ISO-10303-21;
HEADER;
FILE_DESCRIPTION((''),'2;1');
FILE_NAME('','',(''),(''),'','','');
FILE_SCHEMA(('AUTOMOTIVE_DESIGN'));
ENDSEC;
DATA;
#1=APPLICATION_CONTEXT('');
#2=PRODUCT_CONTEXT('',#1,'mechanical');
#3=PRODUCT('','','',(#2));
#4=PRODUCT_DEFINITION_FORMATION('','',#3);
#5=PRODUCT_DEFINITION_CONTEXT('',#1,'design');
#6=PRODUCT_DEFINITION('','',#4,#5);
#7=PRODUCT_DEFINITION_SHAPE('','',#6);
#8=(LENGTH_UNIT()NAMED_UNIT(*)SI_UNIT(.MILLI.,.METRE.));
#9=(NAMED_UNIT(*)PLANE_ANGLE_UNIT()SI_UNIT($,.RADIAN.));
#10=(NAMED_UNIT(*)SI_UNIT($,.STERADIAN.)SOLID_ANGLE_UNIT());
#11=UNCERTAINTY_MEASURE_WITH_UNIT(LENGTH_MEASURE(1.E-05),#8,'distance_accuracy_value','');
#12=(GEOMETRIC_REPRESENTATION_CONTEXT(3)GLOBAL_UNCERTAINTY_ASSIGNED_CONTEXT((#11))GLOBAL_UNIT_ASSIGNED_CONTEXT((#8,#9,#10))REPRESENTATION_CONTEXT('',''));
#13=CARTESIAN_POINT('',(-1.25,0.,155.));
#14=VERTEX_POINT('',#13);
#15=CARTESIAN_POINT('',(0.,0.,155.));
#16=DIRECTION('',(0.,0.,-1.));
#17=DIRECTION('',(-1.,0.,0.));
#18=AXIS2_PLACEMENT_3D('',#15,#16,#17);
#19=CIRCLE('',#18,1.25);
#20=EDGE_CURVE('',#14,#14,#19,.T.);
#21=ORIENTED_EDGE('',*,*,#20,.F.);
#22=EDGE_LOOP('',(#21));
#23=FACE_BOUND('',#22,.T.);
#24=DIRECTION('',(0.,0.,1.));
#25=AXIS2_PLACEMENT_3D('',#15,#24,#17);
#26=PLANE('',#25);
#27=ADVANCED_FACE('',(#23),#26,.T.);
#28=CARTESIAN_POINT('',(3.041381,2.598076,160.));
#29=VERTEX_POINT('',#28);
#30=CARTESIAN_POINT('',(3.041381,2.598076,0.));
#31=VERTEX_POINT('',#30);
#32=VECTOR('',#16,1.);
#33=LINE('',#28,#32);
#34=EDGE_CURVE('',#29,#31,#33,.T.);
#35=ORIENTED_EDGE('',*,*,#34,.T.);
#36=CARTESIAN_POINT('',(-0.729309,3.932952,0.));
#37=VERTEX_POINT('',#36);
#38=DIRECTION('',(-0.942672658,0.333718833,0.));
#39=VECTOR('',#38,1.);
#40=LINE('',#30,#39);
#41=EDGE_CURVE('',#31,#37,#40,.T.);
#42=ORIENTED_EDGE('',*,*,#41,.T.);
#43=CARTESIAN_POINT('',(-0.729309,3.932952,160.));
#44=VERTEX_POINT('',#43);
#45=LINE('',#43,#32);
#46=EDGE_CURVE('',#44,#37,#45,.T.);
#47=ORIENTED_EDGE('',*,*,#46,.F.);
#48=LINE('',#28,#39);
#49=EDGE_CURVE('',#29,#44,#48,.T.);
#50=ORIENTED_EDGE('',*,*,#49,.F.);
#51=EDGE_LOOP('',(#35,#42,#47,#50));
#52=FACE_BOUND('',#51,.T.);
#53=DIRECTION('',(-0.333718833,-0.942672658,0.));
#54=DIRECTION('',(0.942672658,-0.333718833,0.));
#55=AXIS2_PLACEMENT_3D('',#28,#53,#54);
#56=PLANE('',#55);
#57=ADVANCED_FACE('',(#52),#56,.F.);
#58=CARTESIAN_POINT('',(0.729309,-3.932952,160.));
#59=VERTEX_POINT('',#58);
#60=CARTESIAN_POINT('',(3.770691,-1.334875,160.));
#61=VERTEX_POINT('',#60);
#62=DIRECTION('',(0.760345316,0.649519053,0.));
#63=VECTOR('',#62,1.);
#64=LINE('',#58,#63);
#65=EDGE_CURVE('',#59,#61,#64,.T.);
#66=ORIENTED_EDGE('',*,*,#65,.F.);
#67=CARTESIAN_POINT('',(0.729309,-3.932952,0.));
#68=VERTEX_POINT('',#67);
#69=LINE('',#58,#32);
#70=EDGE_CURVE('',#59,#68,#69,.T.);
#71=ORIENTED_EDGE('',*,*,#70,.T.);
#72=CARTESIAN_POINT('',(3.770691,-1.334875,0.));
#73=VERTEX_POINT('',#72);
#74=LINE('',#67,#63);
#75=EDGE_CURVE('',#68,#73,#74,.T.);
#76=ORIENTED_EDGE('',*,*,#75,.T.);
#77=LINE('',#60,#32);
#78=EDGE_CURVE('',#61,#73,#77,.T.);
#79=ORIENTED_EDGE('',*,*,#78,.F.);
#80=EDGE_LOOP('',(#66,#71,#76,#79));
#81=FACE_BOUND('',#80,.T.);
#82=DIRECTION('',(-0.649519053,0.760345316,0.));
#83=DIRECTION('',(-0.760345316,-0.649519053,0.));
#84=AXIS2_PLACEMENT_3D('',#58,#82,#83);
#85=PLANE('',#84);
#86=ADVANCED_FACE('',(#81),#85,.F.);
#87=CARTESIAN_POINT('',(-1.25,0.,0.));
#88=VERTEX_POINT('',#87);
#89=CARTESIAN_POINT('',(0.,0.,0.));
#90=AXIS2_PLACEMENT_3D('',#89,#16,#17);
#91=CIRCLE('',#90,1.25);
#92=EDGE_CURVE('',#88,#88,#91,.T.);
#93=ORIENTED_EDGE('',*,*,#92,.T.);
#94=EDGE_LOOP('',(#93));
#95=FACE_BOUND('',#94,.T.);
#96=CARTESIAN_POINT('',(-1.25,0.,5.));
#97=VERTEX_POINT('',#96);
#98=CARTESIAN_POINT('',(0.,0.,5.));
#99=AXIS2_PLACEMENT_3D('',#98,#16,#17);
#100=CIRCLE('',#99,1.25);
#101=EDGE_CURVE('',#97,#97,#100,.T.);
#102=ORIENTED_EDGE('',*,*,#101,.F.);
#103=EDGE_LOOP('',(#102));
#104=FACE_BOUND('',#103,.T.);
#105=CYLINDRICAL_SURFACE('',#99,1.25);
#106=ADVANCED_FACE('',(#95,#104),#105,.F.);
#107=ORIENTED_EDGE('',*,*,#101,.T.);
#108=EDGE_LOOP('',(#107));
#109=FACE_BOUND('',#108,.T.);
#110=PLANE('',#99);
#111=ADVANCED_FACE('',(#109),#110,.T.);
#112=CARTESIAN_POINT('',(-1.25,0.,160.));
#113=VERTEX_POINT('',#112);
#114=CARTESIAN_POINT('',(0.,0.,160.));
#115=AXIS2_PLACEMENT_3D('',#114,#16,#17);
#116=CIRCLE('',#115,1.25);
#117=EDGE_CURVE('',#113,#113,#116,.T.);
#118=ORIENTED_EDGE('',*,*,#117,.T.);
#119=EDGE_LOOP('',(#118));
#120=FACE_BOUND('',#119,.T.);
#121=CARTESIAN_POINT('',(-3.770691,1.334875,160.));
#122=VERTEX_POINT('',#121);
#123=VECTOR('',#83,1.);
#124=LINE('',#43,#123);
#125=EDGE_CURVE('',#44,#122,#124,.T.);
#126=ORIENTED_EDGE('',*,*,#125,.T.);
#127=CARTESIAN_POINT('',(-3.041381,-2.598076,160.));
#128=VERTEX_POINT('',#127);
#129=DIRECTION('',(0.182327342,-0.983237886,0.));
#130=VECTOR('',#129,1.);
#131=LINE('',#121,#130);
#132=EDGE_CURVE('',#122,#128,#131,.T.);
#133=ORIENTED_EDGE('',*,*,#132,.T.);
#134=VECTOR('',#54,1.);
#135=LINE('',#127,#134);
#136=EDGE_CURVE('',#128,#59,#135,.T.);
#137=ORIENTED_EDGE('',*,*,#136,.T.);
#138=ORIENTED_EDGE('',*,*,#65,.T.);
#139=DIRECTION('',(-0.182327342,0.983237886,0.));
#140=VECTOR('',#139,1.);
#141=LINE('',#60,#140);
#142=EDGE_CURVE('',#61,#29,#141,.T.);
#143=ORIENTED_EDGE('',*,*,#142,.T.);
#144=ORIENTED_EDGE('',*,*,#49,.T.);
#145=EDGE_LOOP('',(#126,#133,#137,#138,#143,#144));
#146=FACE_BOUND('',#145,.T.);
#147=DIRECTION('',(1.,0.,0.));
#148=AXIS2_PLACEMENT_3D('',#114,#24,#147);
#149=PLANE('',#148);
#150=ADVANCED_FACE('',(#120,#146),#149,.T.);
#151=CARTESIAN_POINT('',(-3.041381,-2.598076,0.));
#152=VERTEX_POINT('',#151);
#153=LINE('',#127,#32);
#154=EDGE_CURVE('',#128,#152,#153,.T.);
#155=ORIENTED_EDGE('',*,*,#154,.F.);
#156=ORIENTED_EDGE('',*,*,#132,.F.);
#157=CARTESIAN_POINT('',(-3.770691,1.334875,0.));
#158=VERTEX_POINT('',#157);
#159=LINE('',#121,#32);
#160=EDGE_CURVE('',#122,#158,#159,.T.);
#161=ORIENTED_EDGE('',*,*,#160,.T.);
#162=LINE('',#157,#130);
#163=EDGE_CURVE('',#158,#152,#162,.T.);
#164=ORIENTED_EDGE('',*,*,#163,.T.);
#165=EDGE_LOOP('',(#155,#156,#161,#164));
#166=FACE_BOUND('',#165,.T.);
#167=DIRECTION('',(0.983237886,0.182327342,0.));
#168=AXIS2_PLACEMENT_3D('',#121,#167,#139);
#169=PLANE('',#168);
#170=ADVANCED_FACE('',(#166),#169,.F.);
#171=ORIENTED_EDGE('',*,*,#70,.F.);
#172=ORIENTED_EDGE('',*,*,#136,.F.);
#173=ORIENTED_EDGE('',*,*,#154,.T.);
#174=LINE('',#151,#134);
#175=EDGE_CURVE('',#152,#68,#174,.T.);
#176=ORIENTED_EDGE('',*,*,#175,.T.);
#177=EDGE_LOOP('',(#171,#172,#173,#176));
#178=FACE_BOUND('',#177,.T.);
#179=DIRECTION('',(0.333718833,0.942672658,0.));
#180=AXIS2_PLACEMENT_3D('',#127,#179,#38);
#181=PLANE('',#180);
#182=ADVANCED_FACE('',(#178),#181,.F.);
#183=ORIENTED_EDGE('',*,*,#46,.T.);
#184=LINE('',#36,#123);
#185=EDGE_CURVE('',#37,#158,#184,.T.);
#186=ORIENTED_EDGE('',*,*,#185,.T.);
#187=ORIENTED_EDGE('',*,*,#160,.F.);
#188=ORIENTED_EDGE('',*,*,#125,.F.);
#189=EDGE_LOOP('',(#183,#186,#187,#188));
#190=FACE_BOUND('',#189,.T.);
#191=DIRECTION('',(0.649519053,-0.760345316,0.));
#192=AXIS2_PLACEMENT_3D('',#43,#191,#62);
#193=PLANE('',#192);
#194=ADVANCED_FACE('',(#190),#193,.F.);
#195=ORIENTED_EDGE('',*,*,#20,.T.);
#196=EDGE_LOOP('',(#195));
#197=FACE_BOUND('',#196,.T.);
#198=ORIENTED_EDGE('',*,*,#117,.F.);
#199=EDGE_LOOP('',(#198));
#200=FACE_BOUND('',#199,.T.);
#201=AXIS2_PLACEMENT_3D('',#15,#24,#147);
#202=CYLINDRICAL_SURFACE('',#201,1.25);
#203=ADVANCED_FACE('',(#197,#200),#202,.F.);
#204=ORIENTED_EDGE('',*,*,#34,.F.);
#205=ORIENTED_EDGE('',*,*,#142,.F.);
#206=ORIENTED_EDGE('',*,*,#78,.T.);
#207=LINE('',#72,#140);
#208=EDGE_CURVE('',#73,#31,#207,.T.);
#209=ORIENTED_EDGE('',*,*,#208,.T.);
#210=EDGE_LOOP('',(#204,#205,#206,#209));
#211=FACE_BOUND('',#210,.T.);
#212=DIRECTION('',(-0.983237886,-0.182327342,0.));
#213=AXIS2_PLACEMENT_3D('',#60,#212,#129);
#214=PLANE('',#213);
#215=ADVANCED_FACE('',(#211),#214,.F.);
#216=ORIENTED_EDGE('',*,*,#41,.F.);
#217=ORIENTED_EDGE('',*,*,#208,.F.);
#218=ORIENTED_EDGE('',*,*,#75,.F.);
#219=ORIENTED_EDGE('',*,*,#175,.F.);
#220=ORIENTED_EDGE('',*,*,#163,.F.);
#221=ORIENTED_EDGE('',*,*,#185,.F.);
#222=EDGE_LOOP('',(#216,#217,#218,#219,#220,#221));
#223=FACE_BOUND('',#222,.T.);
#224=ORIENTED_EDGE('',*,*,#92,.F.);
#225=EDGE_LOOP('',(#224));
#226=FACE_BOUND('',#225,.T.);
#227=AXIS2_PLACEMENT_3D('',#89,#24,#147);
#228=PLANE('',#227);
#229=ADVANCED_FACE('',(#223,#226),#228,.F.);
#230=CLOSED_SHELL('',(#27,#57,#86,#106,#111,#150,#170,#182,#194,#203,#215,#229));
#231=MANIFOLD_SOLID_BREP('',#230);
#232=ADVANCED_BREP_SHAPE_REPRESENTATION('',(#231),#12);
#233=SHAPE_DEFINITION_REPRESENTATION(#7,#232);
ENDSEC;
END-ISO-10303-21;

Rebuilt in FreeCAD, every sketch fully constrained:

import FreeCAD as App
import Part
import Sketcher

doc = App.newDocument("Part")
body = doc.addObject("PartDesign::Body", "Body")

sketch1 = doc.addObject("Sketcher::SketchObject", "Sketch")
body.addObject(sketch1)
sketch1.AttachmentSupport = (doc.XY_Plane, [""])
sketch1.MapMode = "FlatFace"
sketch1.addGeometry([
    Part.LineSegment(App.Vector(3.770691, -1.334875, 0), App.Vector(3.041381, 2.598076, 0)),
    Part.LineSegment(App.Vector(3.041381, 2.598076, 0), App.Vector(-0.729309, 3.932952, 0)),
    Part.LineSegment(App.Vector(-0.729309, 3.932952, 0), App.Vector(-3.770691, 1.334875, 0)),
    Part.LineSegment(App.Vector(-3.770691, 1.334875, 0), App.Vector(-3.041381, -2.598076, 0)),
    Part.LineSegment(App.Vector(-3.041381, -2.598076, 0), App.Vector(0.729309, -3.932952, 0)),
    Part.LineSegment(App.Vector(0.729309, -3.932952, 0), App.Vector(3.770691, -1.334875, 0)),
], False)
sketch1.addConstraint([
    Sketcher.Constraint("Coincident", 0, 2, 1, 1),
    Sketcher.Constraint("Coincident", 1, 2, 2, 1),
    Sketcher.Constraint("Coincident", 2, 2, 3, 1),
    Sketcher.Constraint("Coincident", 3, 2, 4, 1),
    Sketcher.Constraint("Coincident", 4, 2, 5, 1),
    Sketcher.Constraint("Coincident", 5, 2, 0, 1),
    Sketcher.Constraint("Symmetric", 0, 2, 3, 2, -1, 1),
    Sketcher.Constraint("Symmetric", 1, 2, 4, 2, -1, 1),
    Sketcher.Constraint("Symmetric", 2, 2, 5, 2, -1, 1),
    Sketcher.Constraint("Equal", 0, 1),
    Sketcher.Constraint("Equal", 1, 2),
    Sketcher.Constraint("Distance", 0, 4.0),
    Sketcher.Constraint("DistanceX", 2, 2, 4, 2, 4.5),
    Sketcher.Constraint("DistanceY", 2, 2, 0, 2, 1.263201),
    Sketcher.Constraint("DistanceX", -1, 1, 0, 2, 3.041381),
])
pad1 = doc.addObject("PartDesign::Pad", "Pad")
body.addObject(pad1)
pad1.Profile = sketch1
pad1.Length = 160

sketch2 = doc.addObject("Sketcher::SketchObject", "Sketch001")
body.addObject(sketch2)
sketch2.AttachmentSupport = (doc.XY_Plane, [""])
sketch2.MapMode = "FlatFace"
sketch2.addGeometry(Part.Circle(App.Vector(0, 0, 0), App.Vector(0, 0, 1), 1.25), False)
sketch2.addConstraint([
    Sketcher.Constraint("Coincident", 0, 3, -1, 1),
    Sketcher.Constraint("Diameter", 0, 2.5),
])
pocket1 = doc.addObject("PartDesign::Pocket", "Pocket")
body.addObject(pocket1)
pocket1.Profile = sketch2
pocket1.Length = 5
pocket1.Reversed = True
doc.recompute()

datumplane = doc.addObject("PartDesign::Plane", "DatumPlane")
body.addObject(datumplane)
datumplane.AttachmentSupport = (doc.XY_Plane, [""])
datumplane.MapMode = "FlatFace"
datumplane.AttachmentOffset = App.Placement(App.Vector(0, 0, 80), App.Rotation())
mirrored = doc.addObject("PartDesign::Mirrored", "Mirrored")
body.addObject(mirrored)
mirrored.Originals = [pocket1]
mirrored.MirrorPlane = (datumplane, [""])
body.Tip = mirrored

doc.recompute()
